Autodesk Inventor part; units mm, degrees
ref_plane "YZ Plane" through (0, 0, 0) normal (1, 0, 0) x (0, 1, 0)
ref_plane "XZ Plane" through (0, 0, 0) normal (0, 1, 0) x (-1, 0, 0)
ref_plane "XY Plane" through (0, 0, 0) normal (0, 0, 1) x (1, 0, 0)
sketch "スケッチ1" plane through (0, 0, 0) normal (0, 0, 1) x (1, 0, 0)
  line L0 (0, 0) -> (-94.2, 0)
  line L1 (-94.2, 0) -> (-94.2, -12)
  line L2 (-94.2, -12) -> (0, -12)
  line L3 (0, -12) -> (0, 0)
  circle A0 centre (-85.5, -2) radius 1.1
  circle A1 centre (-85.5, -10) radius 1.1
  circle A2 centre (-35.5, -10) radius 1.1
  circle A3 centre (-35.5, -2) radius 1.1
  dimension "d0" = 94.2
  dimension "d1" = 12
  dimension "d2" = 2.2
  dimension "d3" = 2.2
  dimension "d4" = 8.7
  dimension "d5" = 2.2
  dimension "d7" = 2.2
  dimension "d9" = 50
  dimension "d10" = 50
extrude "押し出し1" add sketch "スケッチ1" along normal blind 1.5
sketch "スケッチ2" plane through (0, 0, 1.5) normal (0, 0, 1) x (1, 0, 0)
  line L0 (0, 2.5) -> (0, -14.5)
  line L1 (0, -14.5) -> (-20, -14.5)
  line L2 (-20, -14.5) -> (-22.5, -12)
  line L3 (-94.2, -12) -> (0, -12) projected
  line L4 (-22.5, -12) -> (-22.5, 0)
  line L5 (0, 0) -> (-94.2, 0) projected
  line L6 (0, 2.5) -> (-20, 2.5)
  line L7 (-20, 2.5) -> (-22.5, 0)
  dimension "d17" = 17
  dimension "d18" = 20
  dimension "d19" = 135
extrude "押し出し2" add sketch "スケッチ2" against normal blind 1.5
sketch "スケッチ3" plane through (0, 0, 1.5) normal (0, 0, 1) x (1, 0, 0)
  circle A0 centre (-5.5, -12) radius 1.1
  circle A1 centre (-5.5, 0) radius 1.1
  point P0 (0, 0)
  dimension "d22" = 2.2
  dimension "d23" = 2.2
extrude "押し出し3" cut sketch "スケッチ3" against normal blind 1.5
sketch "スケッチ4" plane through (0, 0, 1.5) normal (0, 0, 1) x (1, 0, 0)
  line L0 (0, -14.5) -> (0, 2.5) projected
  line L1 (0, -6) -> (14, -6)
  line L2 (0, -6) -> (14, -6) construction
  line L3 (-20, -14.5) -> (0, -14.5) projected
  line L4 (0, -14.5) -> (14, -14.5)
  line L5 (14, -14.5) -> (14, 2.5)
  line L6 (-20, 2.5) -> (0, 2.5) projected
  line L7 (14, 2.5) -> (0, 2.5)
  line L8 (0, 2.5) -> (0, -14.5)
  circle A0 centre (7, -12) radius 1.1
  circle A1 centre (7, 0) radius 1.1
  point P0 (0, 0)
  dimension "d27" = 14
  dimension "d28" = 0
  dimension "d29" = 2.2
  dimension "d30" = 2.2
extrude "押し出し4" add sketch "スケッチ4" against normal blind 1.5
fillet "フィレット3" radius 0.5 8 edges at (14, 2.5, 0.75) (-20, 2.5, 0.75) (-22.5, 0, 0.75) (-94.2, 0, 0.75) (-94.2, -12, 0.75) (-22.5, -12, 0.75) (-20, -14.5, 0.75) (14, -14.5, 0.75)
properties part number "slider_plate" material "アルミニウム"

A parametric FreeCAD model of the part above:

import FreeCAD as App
import Part
import Sketcher


def edges_at(feature, points):
    """Names of the edges that pass closest to the given points."""
    edges = feature.Shape.Edges
    near = lambda p: min(range(len(edges)), key=lambda i: edges[i].distToShape(Part.Vertex(*p))[0])
    return sorted({f"Edge{near(p) + 1}" for p in points})


def add_polygon(sketch, points):
    """Adds a closed chain of lines whose ends are joined by coincident constraints."""
    first, n = sketch.GeometryCount, len(points)
    for a, b in zip(points, points[1:] + points[:1]):
        sketch.addGeometry(Part.LineSegment(App.Vector(*a, 0), App.Vector(*b, 0)), False)
    for i in range(n):
        sketch.addConstraint(Sketcher.Constraint("Coincident", first + i, 2, first + (i + 1) % n, 1))

doc = App.newDocument("Part")
body = doc.addObject("PartDesign::Body", "Body")

# Sketch on XY plane
sketch1 = doc.addObject("Sketcher::SketchObject", "Sketch")
body.addObject(sketch1)
sketch1.AttachmentSupport = (doc.XY_Plane, [""])
sketch1.MapMode = "FlatFace"
add_polygon(sketch1, [(0, -12), (0, 0), (-94.2, 0), (-94.2, -12)])  # lines 0-3
sketch1.addGeometry(Part.Circle(App.Vector(-85.5, -10, 0), App.Vector(0, 0, 1), 1.1), False)  # 4
sketch1.addGeometry(Part.Circle(App.Vector(-35.5, -10, 0), App.Vector(0, 0, 1), 1.1), False)  # 5
sketch1.addGeometry(Part.Circle(App.Vector(-85.5, -2, 0), App.Vector(0, 0, 1), 1.1), False)  # 6
sketch1.addGeometry(Part.Circle(App.Vector(-35.5, -2, 0), App.Vector(0, 0, 1), 1.1), False)  # 7
sketch1.addConstraint([
    Sketcher.Constraint("Vertical", 0),
    Sketcher.Constraint("Horizontal", 1),
    Sketcher.Constraint("Vertical", 2),
    Sketcher.Constraint("Horizontal", 3),
    Sketcher.Constraint("Coincident", 0, 2, -1, 1),
    Sketcher.Constraint("Equal", 4, 5),
    Sketcher.Constraint("Equal", 5, 6),
    Sketcher.Constraint("Equal", 6, 7),
    Sketcher.Constraint("Horizontal", 4, 3, 5, 3),
    Sketcher.Constraint("Horizontal", 6, 3, 7, 3),
    Sketcher.Constraint("Vertical", 4, 3, 6, 3),
    Sketcher.Constraint("Vertical", 5, 3, 7, 3),
    Sketcher.Constraint("Diameter", 4, 2.2),
    Sketcher.Constraint("DistanceY", 0, 1, 0, 2, 12.0),
    Sketcher.Constraint("DistanceX", 1, 2, 1, 1, 94.2),
    Sketcher.Constraint("DistanceX", 4, 3, 5, 3, 50.0),
    Sketcher.Constraint("DistanceX", 1, 2, 6, 3, 8.7),
    Sketcher.Constraint("DistanceY", 4, 3, -1, 1, 10.0),
    Sketcher.Constraint("DistanceY", 6, 3, -1, 1, 2.0),
])
pad1 = doc.addObject("PartDesign::Pad", "Pad")
body.addObject(pad1)
pad1.Profile = sketch1
pad1.Length = 1.5

# Sketch on XY plane
sketch2 = doc.addObject("Sketcher::SketchObject", "Sketch001")
body.addObject(sketch2)
sketch2.AttachmentSupport = (doc.XY_Plane, [""])
sketch2.MapMode = "FlatFace"
sketch2.AttachmentOffset = App.Placement(App.Vector(0, 0, 1.5), App.Rotation())
add_polygon(sketch2, [(0, 2.5), (-20, 2.5), (-22.5, 0), (-22.5, -12), (-20, -14.5), (0, -14.5)])  # lines 0-5
sketch2.addConstraint([
    Sketcher.Constraint("Horizontal", 0),
    Sketcher.Constraint("Vertical", 2),
    Sketcher.Constraint("Horizontal", 4),
    Sketcher.Constraint("Vertical", 5),
    Sketcher.Constraint("PointOnObject", 1, 2, -1),
    Sketcher.Constraint("PointOnObject", 4, 2, -2),
    Sketcher.Constraint("Perpendicular", 1, 3),
    Sketcher.Constraint("Vertical", 0, 2, 3, 2),
    Sketcher.Constraint("Equal", 1, 3),
    Sketcher.Constraint("DistanceX", 0, 2, 0, 1, 20.0),
    Sketcher.Constraint("DistanceY", 5, 1, 5, 2, 17.0),
    Sketcher.Constraint("DistanceY", 2, 2, 2, 1, 12.0),
])
pad2 = doc.addObject("PartDesign::Pad", "Pad001")
body.addObject(pad2)
pad2.Profile = sketch2
pad2.Length = 1.5
pad2.Reversed = True

# Sketch on XY plane
sketch3 = doc.addObject("Sketcher::SketchObject", "Sketch002")
body.addObject(sketch3)
sketch3.AttachmentSupport = (doc.XY_Plane, [""])
sketch3.MapMode = "FlatFace"
sketch3.AttachmentOffset = App.Placement(App.Vector(0, 0, 1.5), App.Rotation())
sketch3.addGeometry([
    Part.Circle(App.Vector(-5.5, -12, 0), App.Vector(0, 0, 1), 1.1),
    Part.Circle(App.Vector(-5.5, 0, 0), App.Vector(0, 0, 1), 1.1),
], False)
sketch3.addConstraint([
    Sketcher.Constraint("Equal", 0, 1),
    Sketcher.Constraint("PointOnObject", 1, 3, -1),
    Sketcher.Constraint("Vertical", 0, 3, 1, 3),
    Sketcher.Constraint("Diameter", 0, 2.2),
    Sketcher.Constraint("DistanceY", 0, 3, -1, 1, 12.0),
    Sketcher.Constraint("DistanceX", 0, 3, -1, 1, 5.5),
])
pocket1 = doc.addObject("PartDesign::Pocket", "Pocket")
body.addObject(pocket1)
pocket1.Profile = sketch3
pocket1.Length = 1.5

# Sketch on XY plane
sketch4 = doc.addObject("Sketcher::SketchObject", "Sketch003")
body.addObject(sketch4)
sketch4.AttachmentSupport = (doc.XY_Plane, [""])
sketch4.MapMode = "FlatFace"
sketch4.AttachmentOffset = App.Placement(App.Vector(0, 0, 1.5), App.Rotation())
add_polygon(sketch4, [(0, -14.5), (14, -14.5), (14, 2.5), (0, 2.5)])  # lines 0-3
sketch4.addGeometry(Part.Circle(App.Vector(7, -12, 0), App.Vector(0, 0, 1), 1.1), False)  # 4
sketch4.addGeometry(Part.Circle(App.Vector(7, 0, 0), App.Vector(0, 0, 1), 1.1), False)  # 5
sketch4.addConstraint([
    Sketcher.Constraint("Horizontal", 0),
    Sketcher.Constraint("Vertical", 1),
    Sketcher.Constraint("Horizontal", 2),
    Sketcher.Constraint("Vertical", 3),
    Sketcher.Constraint("Equal", 4, 5),
    Sketcher.Constraint("PointOnObject", 5, 3, -1),
    Sketcher.Constraint("PointOnObject", 2, 2, -2),
    Sketcher.Constraint("Vertical", 4, 3, 5, 3),
    Sketcher.Constraint("Diameter", 4, 2.2),
    Sketcher.Constraint("DistanceX", 0, 1, 0, 2, 14.0),
    Sketcher.Constraint("DistanceY", 1, 1, 1, 2, 17.0),
    Sketcher.Constraint("DistanceX", -1, 1, 4, 3, 7.0),
    Sketcher.Constraint("DistanceY", 4, 3, -1, 1, 12.0),
    Sketcher.Constraint("DistanceY", 0, 2, -1, 1, 14.5),
])
pad3 = doc.addObject("PartDesign::Pad", "Pad002")
body.addObject(pad3)
pad3.Profile = sketch4
pad3.Length = 1.5
pad3.Reversed = True
doc.recompute()

fillet = doc.addObject("PartDesign::Fillet", "Fillet")
body.addObject(fillet)
fillet.Base = (pad3, edges_at(pad3, [
    (14, 2.5, 0.75),
    (-20, 2.5, 0.75),
    (-22.5, 0, 0.75),
    (-94.2, 0, 0.75),
    (-94.2, -12, 0.75),
    (-22.5, -12, 0.75),
    (-20, -14.5, 0.75),
    (14, -14.5, 0.75),
]))
fillet.Radius = 0.5

doc.recompute()
